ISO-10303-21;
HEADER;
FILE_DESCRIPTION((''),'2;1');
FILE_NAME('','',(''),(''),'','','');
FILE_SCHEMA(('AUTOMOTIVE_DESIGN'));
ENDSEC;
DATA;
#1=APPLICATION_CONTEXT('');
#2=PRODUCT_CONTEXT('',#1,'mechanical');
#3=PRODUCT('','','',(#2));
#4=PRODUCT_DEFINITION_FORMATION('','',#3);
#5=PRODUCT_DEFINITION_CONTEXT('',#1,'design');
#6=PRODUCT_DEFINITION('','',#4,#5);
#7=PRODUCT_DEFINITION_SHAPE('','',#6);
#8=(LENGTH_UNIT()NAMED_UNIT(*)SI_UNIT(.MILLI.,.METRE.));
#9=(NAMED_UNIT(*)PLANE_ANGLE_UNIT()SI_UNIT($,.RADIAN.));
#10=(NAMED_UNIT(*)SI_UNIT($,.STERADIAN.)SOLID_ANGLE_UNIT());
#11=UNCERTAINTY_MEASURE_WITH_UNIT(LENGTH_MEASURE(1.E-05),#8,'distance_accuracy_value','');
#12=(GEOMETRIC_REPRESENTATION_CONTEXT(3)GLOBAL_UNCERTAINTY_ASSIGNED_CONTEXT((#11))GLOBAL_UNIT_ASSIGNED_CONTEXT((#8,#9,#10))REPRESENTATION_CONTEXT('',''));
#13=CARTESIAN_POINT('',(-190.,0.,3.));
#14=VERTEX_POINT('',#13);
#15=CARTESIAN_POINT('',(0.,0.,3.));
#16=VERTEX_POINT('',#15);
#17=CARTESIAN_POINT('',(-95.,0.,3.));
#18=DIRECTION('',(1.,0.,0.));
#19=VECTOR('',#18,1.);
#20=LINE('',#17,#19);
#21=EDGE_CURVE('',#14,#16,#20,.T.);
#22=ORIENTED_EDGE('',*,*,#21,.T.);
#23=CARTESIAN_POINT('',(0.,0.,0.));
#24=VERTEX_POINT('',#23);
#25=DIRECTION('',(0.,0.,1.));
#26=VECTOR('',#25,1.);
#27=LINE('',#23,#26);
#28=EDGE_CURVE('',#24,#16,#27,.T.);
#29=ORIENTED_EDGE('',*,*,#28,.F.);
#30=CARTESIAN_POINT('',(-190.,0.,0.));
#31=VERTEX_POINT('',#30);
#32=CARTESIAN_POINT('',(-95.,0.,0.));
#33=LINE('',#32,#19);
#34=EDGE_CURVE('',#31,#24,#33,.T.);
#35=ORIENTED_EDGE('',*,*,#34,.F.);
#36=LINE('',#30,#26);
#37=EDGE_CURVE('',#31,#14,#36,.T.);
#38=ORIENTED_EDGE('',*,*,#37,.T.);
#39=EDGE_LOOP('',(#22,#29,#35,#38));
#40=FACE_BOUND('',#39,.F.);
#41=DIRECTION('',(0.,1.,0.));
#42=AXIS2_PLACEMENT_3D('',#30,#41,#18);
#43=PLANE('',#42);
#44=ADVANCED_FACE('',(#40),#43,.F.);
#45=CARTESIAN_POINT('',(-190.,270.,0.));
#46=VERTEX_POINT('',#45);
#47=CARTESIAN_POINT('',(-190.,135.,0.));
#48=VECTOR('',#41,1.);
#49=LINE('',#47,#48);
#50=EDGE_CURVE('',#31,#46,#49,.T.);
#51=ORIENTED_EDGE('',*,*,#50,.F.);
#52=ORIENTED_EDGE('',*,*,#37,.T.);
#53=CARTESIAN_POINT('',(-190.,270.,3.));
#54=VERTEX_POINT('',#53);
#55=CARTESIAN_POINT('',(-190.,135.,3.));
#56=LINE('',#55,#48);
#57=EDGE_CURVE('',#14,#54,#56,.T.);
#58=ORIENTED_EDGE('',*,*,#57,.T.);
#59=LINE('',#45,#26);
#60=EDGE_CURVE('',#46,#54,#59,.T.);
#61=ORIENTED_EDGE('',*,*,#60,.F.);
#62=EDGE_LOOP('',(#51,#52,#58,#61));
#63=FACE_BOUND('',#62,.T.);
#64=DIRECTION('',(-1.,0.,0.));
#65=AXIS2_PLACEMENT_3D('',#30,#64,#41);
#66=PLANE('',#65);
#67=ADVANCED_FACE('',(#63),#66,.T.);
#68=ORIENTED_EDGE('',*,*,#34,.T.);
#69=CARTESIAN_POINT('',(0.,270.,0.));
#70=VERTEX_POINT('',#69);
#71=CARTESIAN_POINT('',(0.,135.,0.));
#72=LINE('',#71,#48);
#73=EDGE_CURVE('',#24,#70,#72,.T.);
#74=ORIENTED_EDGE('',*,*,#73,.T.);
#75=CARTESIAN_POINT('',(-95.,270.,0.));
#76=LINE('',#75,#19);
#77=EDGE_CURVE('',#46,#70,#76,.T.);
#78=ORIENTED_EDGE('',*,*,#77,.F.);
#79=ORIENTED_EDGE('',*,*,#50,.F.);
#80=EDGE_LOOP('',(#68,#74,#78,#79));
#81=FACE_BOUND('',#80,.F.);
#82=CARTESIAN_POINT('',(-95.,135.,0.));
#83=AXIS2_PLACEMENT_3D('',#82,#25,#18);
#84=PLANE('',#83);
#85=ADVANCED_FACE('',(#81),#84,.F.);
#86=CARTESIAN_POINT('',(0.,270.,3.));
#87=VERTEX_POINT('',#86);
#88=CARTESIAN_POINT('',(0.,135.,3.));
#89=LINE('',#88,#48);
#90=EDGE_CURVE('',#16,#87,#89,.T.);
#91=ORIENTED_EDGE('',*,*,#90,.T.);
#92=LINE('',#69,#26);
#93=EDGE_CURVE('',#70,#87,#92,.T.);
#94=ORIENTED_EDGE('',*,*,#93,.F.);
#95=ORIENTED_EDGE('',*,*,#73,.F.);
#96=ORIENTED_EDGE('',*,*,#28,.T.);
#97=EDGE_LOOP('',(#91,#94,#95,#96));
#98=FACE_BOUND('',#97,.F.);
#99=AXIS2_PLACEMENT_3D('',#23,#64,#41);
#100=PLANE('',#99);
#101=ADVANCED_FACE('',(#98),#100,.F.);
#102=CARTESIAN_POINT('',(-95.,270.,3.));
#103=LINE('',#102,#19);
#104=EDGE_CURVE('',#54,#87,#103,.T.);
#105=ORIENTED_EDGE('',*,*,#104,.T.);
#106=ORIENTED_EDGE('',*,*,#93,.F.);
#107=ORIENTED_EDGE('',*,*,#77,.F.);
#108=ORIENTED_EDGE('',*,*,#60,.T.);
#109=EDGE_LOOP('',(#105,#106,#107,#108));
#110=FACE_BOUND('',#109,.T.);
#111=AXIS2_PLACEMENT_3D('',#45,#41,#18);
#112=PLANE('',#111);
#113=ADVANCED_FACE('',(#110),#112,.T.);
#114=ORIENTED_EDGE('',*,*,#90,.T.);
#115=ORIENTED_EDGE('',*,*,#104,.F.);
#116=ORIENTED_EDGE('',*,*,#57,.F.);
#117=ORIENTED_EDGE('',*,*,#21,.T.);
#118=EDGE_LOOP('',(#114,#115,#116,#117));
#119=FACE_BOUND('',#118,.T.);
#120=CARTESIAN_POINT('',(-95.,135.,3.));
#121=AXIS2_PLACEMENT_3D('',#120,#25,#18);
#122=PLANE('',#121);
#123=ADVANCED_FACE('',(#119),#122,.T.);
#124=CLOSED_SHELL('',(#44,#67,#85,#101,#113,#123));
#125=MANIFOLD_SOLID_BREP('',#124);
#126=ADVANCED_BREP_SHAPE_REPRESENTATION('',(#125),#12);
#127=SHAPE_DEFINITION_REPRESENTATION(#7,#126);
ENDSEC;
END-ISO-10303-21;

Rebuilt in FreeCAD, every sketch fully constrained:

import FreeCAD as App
import Part
import Sketcher
from FreeCAD import Vector
Q = App.Units.Quantity

doc = App.newDocument("Part")
body = doc.addObject("PartDesign::Body", "Body")

sketch1 = doc.addObject("Sketcher::SketchObject", "Sketch")
body.addObject(sketch1)
sketch1.AttachmentSupport = (doc.XY_Plane, [""])
sketch1.MapMode = "FlatFace"
sketch1.addGeometry(Part.LineSegment(Vector(-190, 270, 0), Vector(-190, 0, 0)), False)
sketch1.addGeometry(Part.LineSegment(Vector(-190, 0, 0), Vector(0, 0, 0)), False)
sketch1.addGeometry(Part.LineSegment(Vector(0, 0, 0), Vector(0, 270, 0)), False)
sketch1.addGeometry(Part.LineSegment(Vector(0, 270, 0), Vector(-190, 270, 0)), False)
sketch1.addConstraint(Sketcher.Constraint("Coincident", 0, 2, 1, 1))
sketch1.addConstraint(Sketcher.Constraint("Coincident", 1, 2, 2, 1))
sketch1.addConstraint(Sketcher.Constraint("Coincident", 2, 2, 3, 1))
sketch1.addConstraint(Sketcher.Constraint("Coincident", 3, 2, 0, 1))
sketch1.addConstraint(Sketcher.Constraint("Vertical", 0))
sketch1.addConstraint(Sketcher.Constraint("Horizontal", 1))
sketch1.addConstraint(Sketcher.Constraint("Vertical", 2))
sketch1.addConstraint(Sketcher.Constraint("Horizontal", 3))
sketch1.addConstraint(Sketcher.Constraint("Coincident", 1, 2, -1, 1))
sketch1.addConstraint(Sketcher.Constraint("DistanceX", 1, 1, 1, 2, Q("190 mm")))
sketch1.addConstraint(Sketcher.Constraint("DistanceY", 0, 2, 0, 1, Q("270 mm")))
pad1 = doc.addObject("PartDesign::Pad", "Pad")
body.addObject(pad1)
pad1.Profile = sketch1
pad1.Length = 3

doc.recompute()
